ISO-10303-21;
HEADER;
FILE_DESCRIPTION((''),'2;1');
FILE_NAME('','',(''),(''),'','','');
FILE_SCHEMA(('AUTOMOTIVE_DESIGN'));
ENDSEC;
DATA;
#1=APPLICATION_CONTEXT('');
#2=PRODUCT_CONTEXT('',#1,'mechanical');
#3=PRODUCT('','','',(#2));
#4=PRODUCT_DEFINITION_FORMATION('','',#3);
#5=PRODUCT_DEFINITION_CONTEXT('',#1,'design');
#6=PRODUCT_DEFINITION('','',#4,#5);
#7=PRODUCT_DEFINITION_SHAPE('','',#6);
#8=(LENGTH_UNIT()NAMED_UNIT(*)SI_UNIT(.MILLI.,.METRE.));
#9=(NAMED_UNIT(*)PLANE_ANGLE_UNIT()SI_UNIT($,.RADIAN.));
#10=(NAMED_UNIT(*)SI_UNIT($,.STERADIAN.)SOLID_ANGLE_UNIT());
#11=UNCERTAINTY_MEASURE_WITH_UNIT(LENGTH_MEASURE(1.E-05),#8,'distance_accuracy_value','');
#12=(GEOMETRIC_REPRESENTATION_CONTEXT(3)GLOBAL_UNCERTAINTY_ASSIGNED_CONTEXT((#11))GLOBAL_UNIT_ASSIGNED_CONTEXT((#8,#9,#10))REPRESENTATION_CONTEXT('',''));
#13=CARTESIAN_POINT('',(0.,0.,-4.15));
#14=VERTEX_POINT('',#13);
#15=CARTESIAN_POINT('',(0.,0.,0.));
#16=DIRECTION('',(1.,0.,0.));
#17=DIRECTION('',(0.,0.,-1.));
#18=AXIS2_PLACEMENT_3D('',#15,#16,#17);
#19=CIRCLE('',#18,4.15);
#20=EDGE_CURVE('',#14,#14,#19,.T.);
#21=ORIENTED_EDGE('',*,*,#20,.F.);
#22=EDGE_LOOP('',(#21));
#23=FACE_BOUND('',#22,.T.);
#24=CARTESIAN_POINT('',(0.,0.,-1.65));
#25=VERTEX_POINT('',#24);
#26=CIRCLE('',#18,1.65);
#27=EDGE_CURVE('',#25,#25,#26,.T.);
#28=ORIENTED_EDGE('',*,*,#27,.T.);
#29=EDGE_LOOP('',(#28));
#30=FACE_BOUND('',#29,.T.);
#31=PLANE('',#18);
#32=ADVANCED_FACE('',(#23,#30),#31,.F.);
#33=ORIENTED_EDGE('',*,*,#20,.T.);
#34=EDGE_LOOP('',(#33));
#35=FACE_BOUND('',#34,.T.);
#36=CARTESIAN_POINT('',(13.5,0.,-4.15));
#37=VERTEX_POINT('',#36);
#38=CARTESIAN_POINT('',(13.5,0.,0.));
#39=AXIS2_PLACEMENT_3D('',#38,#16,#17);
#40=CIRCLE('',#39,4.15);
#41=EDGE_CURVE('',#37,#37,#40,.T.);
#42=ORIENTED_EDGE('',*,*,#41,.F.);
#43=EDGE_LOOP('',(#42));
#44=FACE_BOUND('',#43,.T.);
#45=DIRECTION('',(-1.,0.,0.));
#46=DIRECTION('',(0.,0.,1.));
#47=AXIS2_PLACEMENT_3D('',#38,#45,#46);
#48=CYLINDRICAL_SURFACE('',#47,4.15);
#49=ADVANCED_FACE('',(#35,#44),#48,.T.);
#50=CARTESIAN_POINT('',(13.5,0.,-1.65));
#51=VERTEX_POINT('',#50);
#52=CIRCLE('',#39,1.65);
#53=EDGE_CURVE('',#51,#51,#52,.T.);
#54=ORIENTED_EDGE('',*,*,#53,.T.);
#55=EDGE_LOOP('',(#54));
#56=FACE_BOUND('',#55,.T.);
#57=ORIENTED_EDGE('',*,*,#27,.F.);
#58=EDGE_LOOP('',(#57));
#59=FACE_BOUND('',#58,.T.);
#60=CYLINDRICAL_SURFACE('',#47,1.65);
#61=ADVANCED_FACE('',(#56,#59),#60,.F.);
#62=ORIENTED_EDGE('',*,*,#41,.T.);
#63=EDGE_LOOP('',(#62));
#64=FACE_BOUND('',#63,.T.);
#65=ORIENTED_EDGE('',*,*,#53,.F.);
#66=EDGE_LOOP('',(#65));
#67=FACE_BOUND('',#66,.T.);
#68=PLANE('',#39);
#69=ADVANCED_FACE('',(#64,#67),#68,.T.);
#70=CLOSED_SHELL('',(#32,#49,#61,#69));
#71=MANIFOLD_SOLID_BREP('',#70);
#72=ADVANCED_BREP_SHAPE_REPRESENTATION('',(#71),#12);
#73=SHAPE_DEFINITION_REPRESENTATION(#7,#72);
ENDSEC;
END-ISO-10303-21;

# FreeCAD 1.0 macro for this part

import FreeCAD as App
import Part
import Sketcher
from FreeCAD import Vector
Q = App.Units.Quantity

doc = App.newDocument("Part")
params = doc.addObject("Spreadsheet::Sheet", "Params")
for row, (alias, value) in enumerate([
    ("sketch1_diameter", "8.3 mm"),
    ("sketch1_diameter2", "3.3 mm"),
    ("pad1_length", "13.5 mm"),
], start=1):
    params.set(f"A{row}", alias)
    params.set(f"B{row}", "=" + value)
    params.setAlias(f"B{row}", alias)

body = doc.addObject("PartDesign::Body", "Body")

sketch1 = body.newObject("Sketcher::SketchObject", "Sketch")
sketch1.AttachmentSupport = (doc.getObject("YZ_Plane"), [""])
sketch1.MapMode = "FlatFace"
sketch1.addGeometry([
    Part.Circle(Vector(0, 0, 0), Vector(0, 0, 1), 4.15),
    Part.Circle(Vector(0, 0, 0), Vector(0, 0, 1), 1.65),
], False)
sketch1.addConstraint([
    Sketcher.Constraint("Coincident", 0, 3, -1, 1),
    Sketcher.Constraint("Coincident", 1, 3, -1, 1),
    Sketcher.Constraint("Diameter", 0, Q("8.3 mm")),
    Sketcher.Constraint("Diameter", 1, Q("3.3 mm")),
])
sketch1.setExpression("Constraints[2]", "Params.sketch1_diameter")
sketch1.setExpression("Constraints[3]", "Params.sketch1_diameter2")
pad1 = body.newObject("PartDesign::Pad", "Pad")
pad1.Profile = sketch1
pad1.setExpression("Length", "Params.pad1_length")

doc.recompute()
